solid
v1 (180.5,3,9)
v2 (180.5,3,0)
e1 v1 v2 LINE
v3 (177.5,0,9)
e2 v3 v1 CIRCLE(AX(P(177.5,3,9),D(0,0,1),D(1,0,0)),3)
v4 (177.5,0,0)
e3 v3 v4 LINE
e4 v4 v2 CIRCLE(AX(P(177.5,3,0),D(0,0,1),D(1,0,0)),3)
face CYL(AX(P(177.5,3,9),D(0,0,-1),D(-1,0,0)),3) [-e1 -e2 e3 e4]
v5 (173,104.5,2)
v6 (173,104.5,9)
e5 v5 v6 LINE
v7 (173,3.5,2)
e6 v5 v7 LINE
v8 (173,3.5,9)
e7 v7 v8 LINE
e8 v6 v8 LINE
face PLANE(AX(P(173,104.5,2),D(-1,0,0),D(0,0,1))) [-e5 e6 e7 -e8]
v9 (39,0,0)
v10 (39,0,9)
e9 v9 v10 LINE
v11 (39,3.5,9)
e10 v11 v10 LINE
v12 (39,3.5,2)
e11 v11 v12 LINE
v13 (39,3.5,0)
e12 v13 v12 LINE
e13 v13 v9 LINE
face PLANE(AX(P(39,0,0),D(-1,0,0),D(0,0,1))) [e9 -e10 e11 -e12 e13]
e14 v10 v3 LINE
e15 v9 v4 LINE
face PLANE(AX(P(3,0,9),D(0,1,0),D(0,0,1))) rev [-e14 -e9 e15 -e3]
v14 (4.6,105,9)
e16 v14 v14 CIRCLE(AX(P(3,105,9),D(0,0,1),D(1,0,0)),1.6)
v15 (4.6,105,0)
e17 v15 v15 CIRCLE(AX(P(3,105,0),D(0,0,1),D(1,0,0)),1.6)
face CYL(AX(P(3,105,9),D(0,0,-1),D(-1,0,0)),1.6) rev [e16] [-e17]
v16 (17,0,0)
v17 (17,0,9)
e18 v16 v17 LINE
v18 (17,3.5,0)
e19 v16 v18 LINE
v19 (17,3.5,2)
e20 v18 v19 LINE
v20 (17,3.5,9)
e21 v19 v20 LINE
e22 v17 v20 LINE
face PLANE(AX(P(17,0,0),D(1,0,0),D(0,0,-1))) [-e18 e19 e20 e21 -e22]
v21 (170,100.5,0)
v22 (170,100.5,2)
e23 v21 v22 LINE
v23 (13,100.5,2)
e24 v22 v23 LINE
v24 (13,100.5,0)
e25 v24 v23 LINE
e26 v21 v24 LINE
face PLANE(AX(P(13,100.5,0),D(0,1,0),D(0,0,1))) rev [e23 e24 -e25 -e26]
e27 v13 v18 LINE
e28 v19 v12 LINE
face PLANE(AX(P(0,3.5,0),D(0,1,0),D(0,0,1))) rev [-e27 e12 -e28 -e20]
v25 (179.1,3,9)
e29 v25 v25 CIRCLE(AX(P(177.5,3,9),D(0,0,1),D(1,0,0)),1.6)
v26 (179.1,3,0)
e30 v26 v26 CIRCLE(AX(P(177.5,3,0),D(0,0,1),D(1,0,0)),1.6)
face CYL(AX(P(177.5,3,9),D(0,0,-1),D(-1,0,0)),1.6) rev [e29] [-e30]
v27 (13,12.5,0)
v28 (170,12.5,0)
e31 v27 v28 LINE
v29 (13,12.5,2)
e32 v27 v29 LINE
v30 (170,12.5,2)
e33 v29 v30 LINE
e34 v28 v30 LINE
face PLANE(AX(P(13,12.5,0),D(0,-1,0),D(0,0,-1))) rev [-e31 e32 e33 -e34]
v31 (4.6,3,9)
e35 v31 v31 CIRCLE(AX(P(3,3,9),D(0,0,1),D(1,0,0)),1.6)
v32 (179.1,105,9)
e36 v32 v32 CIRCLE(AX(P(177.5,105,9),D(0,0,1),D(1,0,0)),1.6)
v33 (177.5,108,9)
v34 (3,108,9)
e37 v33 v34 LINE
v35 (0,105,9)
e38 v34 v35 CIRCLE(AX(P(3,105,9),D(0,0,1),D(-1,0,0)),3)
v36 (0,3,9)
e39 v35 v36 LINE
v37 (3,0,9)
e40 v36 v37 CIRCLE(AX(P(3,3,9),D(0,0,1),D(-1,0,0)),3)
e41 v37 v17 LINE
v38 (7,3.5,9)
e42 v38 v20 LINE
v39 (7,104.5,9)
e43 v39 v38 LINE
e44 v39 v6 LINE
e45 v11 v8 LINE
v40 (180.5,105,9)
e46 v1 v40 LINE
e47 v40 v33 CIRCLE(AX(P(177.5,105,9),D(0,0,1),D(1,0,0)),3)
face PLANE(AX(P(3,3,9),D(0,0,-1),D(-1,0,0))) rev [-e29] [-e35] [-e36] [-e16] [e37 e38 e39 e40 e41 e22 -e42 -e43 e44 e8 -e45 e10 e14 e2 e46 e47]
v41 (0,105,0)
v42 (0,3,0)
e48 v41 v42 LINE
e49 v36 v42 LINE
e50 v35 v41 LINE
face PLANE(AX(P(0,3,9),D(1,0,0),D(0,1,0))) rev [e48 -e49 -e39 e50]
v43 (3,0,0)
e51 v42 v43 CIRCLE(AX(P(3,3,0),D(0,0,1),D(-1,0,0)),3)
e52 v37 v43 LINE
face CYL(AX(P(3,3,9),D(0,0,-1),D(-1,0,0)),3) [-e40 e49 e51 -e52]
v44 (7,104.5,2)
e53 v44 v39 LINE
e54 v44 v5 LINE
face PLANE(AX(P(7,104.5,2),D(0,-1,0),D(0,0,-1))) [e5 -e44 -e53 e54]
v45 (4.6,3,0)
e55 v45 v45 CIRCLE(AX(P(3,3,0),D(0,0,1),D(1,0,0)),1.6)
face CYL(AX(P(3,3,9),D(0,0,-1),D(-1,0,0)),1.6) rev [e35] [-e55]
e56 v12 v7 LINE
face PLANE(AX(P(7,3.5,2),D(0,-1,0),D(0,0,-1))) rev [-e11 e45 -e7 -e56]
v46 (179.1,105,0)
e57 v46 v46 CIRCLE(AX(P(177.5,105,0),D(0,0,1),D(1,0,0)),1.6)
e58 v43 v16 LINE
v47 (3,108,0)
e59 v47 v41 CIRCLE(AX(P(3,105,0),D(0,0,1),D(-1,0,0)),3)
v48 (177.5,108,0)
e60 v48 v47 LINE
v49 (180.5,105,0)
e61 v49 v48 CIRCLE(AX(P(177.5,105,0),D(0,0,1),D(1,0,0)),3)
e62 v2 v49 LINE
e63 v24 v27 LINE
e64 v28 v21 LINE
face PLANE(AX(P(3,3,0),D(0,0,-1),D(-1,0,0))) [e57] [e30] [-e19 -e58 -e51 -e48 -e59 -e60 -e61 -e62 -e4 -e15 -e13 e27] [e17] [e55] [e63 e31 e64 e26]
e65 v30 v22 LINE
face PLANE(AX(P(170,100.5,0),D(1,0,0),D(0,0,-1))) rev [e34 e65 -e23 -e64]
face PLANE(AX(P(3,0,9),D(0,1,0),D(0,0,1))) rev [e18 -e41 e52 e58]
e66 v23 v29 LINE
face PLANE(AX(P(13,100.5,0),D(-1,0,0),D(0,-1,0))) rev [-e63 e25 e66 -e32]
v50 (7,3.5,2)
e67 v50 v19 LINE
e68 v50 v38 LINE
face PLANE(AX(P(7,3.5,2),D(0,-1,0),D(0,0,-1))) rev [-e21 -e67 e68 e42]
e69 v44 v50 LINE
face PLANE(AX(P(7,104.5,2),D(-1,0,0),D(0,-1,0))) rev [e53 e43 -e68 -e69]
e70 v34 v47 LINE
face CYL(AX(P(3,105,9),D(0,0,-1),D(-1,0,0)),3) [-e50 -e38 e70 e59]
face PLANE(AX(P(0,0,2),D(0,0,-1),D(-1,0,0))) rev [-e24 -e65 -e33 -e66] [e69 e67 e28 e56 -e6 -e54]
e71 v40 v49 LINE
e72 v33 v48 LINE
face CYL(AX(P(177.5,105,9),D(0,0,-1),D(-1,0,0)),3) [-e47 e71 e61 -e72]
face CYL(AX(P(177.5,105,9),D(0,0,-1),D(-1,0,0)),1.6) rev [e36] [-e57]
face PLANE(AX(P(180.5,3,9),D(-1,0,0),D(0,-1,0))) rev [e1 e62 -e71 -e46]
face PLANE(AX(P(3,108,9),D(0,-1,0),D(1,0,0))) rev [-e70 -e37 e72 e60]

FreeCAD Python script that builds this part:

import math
import FreeCAD as App
import Part
import Sketcher
from FreeCAD import Vector


def add_polygon(sketch, points):
    """Adds a closed chain of lines whose ends are joined by coincident constraints."""
    first, n = sketch.GeometryCount, len(points)
    for a, b in zip(points, points[1:] + points[:1]):
        sketch.addGeometry(Part.LineSegment(App.Vector(*a, 0), App.Vector(*b, 0)), False)
    for i in range(n):
        sketch.addConstraint(Sketcher.Constraint("Coincident", first + i, 2, first + (i + 1) % n, 1))

doc = App.newDocument("Part")
body = doc.addObject("PartDesign::Body", "Body")

# Sketch on XY plane
sketch1 = body.newObject("Sketcher::SketchObject", "Sketch")
sketch1.AttachmentSupport = (doc.getObject("XY_Plane"), [""])
sketch1.MapMode = "FlatFace"
sketch1.addGeometry([
    Part.LineSegment(Vector(3, 0, 0), Vector(177.5, 0, 0)),  # 0
    Part.ArcOfCircle(Part.Circle(Vector(177.5, 3, 0), Vector(0, 0, 1), 3), math.radians(-90), math.radians(0)),  # 1
    Part.LineSegment(Vector(180.5, 3, 0), Vector(180.5, 105, 0)),  # 2
    Part.ArcOfCircle(Part.Circle(Vector(177.5, 105, 0), Vector(0, 0, 1), 3), math.radians(0), math.radians(90)),  # 3
    Part.LineSegment(Vector(177.5, 108, 0), Vector(3, 108, 0)),  # 4
    Part.ArcOfCircle(Part.Circle(Vector(3, 105, 0), Vector(0, 0, 1), 3), math.radians(90), math.radians(180)),  # 5
    Part.LineSegment(Vector(0, 105, 0), Vector(0, 3, 0)),  # 6
    Part.ArcOfCircle(Part.Circle(Vector(3, 3, 0), Vector(0, 0, 1), 3), math.radians(180), math.radians(270)),  # 7
    Part.Circle(Vector(3, 3, 0), Vector(0, 0, 1), 1.6),  # 8
    Part.Circle(Vector(177.5, 3, 0), Vector(0, 0, 1), 1.6),  # 9
    Part.Circle(Vector(3, 105, 0), Vector(0, 0, 1), 1.6),  # 10
    Part.Circle(Vector(177.5, 105, 0), Vector(0, 0, 1), 1.6),  # 11
], False)
sketch1.addConstraint([
    Sketcher.Constraint("Tangent", 0, 2, 1, 1),
    Sketcher.Constraint("Tangent", 1, 2, 2, 1),
    Sketcher.Constraint("Tangent", 2, 2, 3, 1),
    Sketcher.Constraint("Tangent", 3, 2, 4, 1),
    Sketcher.Constraint("Tangent", 4, 2, 5, 1),
    Sketcher.Constraint("Tangent", 5, 2, 6, 1),
    Sketcher.Constraint("Tangent", 6, 2, 7, 1),
    Sketcher.Constraint("Tangent", 7, 2, 0, 1),
    Sketcher.Constraint("Horizontal", 0),
    Sketcher.Constraint("Vertical", 2),
    Sketcher.Constraint("Horizontal", 4),
    Sketcher.Constraint("Vertical", 6),
    Sketcher.Constraint("Coincident", 8, 3, 7, 3),
    Sketcher.Constraint("Coincident", 9, 3, 1, 3),
    Sketcher.Constraint("Coincident", 10, 3, 5, 3),
    Sketcher.Constraint("Coincident", 11, 3, 3, 3),
    Sketcher.Constraint("Equal", 1, 3),
    Sketcher.Constraint("Equal", 3, 5),
    Sketcher.Constraint("Equal", 5, 7),
    Sketcher.Constraint("Equal", 8, 9),
    Sketcher.Constraint("Equal", 9, 10),
    Sketcher.Constraint("Equal", 10, 11),
    Sketcher.Constraint("PointOnObject", 0, 2, -1),
    Sketcher.Constraint("PointOnObject", 5, 2, -2),
    Sketcher.Constraint("Radius", 1, 3.0),
    Sketcher.Constraint("Diameter", 8, 3.2),
    Sketcher.Constraint("DistanceY", 2, 1, 2, 2, 102.0),
    Sketcher.Constraint("DistanceX", 0, 1, 0, 2, 174.5),
])
pad1 = body.newObject("PartDesign::Pad", "Pad")
pad1.Profile = sketch1
pad1.Length = 9

# Sketch on XY plane
sketch2 = body.newObject("Sketcher::SketchObject", "Sketch001")
sketch2.AttachmentSupport = (doc.getObject("XY_Plane"), [""])
sketch2.MapMode = "FlatFace"
sketch2.AttachmentOffset = App.Placement(Vector(0, 0, 9), App.Rotation())
add_polygon(sketch2, [(7, 104), (7, 4), (173, 4), (173, 104)])  # lines 0-3
sketch2.addConstraint([
    Sketcher.Constraint("Vertical", 0),
    Sketcher.Constraint("Horizontal", 1),
    Sketcher.Constraint("Vertical", 2),
    Sketcher.Constraint("Horizontal", 3),
    Sketcher.Constraint("DistanceX", 1, 1, 1, 2, 166.0),
    Sketcher.Constraint("DistanceY", 0, 2, 0, 1, 101.0),
    Sketcher.Constraint("DistanceX", -1, 1, 0, 2, 7.0),
    Sketcher.Constraint("DistanceY", -1, 1, 0, 2, 3.5),
])
pocket1 = body.newObject("PartDesign::Pocket", "Pocket")
pocket1.Profile = sketch2
pocket1.Length = 7

# Sketch on XY plane
sketch3 = body.newObject("Sketcher::SketchObject", "Sketch002")
sketch3.AttachmentSupport = (doc.getObject("XY_Plane"), [""])
sketch3.MapMode = "FlatFace"
sketch3.AttachmentOffset = App.Placement(Vector(0, 0, 2), App.Rotation())
add_polygon(sketch3, [(13, 100), (13, 12), (170, 12), (170, 100)])  # lines 0-3
sketch3.addConstraint([
    Sketcher.Constraint("Vertical", 0),
    Sketcher.Constraint("Horizontal", 1),
    Sketcher.Constraint("Vertical", 2),
    Sketcher.Constraint("Horizontal", 3),
    Sketcher.Constraint("DistanceX", 1, 1, 1, 2, 157.0),
    Sketcher.Constraint("DistanceY", 0, 2, 0, 1, 88.0),
    Sketcher.Constraint("DistanceX", -1, 1, 0, 2, 13.0),
    Sketcher.Constraint("DistanceY", -1, 1, 0, 2, 12.5),
])
pocket2 = body.newObject("PartDesign::Pocket", "Pocket001")
pocket2.Profile = sketch3
pocket2.Type = "ThroughAll"

# Sketch on XY plane
sketch4 = body.newObject("Sketcher::SketchObject", "Sketch003")
sketch4.AttachmentSupport = (doc.getObject("XY_Plane"), [""])
sketch4.MapMode = "FlatFace"
sketch4.AttachmentOffset = App.Placement(Vector(0, 0, 9), App.Rotation())
add_polygon(sketch4, [(17, 3.5), (17, 0), (39, 0), (39, 3.5)])  # lines 0-3
sketch4.addConstraint([
    Sketcher.Constraint("Vertical", 0),
    Sketcher.Constraint("Horizontal", 1),
    Sketcher.Constraint("Vertical", 2),
    Sketcher.Constraint("Horizontal", 3),
    Sketcher.Constraint("PointOnObject", 0, 2, -1),
    Sketcher.Constraint("DistanceX", 1, 1, 1, 2, 22.0),
    Sketcher.Constraint("DistanceY", 0, 2, 0, 1, 3.5),
    Sketcher.Constraint("DistanceX", -1, 1, 0, 2, 17.0),
])
pocket3 = body.newObject("PartDesign::Pocket", "Pocket002")
pocket3.Profile = sketch4
pocket3.Type = "ThroughAll"

doc.recompute()
